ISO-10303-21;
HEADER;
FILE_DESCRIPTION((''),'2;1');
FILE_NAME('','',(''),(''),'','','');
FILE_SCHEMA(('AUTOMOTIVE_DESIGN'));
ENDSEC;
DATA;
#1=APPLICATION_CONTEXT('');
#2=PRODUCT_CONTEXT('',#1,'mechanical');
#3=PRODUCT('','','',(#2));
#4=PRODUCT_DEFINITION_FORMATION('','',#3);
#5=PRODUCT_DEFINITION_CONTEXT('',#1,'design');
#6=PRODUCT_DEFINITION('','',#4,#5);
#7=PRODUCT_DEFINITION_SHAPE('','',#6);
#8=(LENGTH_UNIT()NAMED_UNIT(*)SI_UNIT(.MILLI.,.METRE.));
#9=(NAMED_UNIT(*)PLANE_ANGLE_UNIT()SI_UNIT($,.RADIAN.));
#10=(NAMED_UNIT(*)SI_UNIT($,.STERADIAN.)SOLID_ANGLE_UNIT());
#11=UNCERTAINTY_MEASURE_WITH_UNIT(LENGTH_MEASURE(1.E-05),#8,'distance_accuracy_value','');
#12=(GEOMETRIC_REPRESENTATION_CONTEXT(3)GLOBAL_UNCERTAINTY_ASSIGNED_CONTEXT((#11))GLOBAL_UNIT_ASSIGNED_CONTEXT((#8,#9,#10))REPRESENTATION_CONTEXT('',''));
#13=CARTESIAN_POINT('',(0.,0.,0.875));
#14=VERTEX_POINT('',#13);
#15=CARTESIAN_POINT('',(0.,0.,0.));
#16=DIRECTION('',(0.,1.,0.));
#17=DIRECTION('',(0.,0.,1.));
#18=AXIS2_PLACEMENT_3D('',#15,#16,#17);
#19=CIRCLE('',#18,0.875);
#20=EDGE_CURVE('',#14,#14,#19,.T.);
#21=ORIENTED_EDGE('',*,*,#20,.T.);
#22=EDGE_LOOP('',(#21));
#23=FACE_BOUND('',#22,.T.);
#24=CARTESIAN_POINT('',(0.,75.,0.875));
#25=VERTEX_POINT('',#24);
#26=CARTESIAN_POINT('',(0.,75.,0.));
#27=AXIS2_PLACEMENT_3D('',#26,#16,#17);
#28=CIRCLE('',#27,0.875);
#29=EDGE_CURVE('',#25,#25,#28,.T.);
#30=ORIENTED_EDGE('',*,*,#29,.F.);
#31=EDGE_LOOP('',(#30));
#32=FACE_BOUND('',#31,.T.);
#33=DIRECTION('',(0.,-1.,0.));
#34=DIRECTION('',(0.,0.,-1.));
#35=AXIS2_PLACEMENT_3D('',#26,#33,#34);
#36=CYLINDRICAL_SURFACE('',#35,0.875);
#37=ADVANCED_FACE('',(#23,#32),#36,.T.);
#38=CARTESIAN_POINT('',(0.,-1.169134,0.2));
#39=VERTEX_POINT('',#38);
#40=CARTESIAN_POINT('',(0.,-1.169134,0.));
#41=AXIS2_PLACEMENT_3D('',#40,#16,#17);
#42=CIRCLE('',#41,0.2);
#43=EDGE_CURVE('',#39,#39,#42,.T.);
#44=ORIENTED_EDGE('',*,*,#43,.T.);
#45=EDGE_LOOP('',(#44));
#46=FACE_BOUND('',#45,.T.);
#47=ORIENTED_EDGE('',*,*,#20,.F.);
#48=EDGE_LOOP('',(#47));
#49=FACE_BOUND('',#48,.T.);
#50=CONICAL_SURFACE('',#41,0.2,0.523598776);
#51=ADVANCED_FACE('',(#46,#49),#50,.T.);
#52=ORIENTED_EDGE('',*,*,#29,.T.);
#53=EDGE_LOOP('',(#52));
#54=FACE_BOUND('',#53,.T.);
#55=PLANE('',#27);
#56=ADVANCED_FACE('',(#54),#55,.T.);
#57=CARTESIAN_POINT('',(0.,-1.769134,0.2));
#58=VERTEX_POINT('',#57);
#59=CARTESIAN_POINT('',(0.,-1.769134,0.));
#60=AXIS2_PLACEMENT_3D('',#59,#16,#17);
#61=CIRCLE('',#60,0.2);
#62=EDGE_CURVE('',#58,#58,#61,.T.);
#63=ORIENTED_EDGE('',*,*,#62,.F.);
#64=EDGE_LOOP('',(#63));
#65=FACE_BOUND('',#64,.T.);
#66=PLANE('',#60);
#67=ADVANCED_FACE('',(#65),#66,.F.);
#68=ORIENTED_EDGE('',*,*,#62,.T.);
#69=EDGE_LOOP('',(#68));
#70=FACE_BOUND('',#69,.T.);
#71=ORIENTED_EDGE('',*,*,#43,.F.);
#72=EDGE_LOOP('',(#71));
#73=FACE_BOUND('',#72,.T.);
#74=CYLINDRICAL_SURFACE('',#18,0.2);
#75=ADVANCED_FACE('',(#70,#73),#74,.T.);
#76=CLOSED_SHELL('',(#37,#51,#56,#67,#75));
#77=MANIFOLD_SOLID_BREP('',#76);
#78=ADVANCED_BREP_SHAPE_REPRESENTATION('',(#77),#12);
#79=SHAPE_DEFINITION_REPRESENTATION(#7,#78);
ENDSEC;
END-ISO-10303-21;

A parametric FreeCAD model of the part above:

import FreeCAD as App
import Part
import Sketcher
Q = App.Units.Quantity

doc = App.newDocument("Part")
body = doc.addObject("PartDesign::Body", "Body")

# Sketch on XZ plane
sketch1 = body.newObject("Sketcher::SketchObject", "Sketch")
sketch1.AttachmentSupport = (doc.getObject("XZ_Plane"), [""])
sketch1.MapMode = "FlatFace"
sketch1.addGeometry(Part.Circle(App.Vector(0, 0, 0), App.Vector(0, 0, 1), 0.9), False)
sketch1.addConstraint([
    Sketcher.Constraint("Coincident", 0, 3, -1, 1),
    Sketcher.Constraint("Diameter", 0, 1.75),
])
pad1 = body.newObject("PartDesign::Pad", "Pad")
pad1.Profile = sketch1
pad1.Length = 75
pad1.Reversed = True

# Sketch on YZ plane
sketch2 = body.newObject("Sketcher::SketchObject", "Sketch001")
sketch2.AttachmentSupport = (doc.getObject("YZ_Plane"), [""])
sketch2.MapMode = "FlatFace"
sketch2.addGeometry([
    Part.LineSegment(App.Vector(0, 0, 0), App.Vector(-1.77, 0, 0)),  # 0
    Part.LineSegment(App.Vector(-1.77, 0, 0), App.Vector(-1.77, -0.2, 0)),  # 1
    Part.LineSegment(App.Vector(-1.77, -0.2, 0), App.Vector(-1.17, -0.2, 0)),  # 2
    Part.LineSegment(App.Vector(-1.17, -0.2, 0), App.Vector(0, -0.88, 0)),  # 3
    Part.LineSegment(App.Vector(0, -0.88, 0), App.Vector(0, 0, 0)),  # 4
], False)
sketch2.addConstraint([
    Sketcher.Constraint("Coincident", 0, 2, 1, 1),
    Sketcher.Constraint("Coincident", 1, 2, 2, 1),
    Sketcher.Constraint("Coincident", 2, 2, 3, 1),
    Sketcher.Constraint("Coincident", 3, 2, 4, 1),
    Sketcher.Constraint("Coincident", 4, 2, 0, 1),
    Sketcher.Constraint("Horizontal", 0),
    Sketcher.Constraint("Vertical", 1),
    Sketcher.Constraint("Horizontal", 2),
    Sketcher.Constraint("Vertical", 4),
    Sketcher.Constraint("Coincident", 4, 2, -1, 1),
    Sketcher.Constraint("Angle", 3, Q("-30 deg")),
    Sketcher.Constraint("DistanceX", 2, 1, 2, 2, 0.6),
    Sketcher.Constraint("DistanceY", 1, 2, 1, 1, 0.2),
    Sketcher.Constraint("Distance", 3, 1.35),
])
revolution = body.newObject("PartDesign::Revolution", "Revolution")
revolution.Profile = sketch2
revolution.ReferenceAxis = (sketch2, ["H_Axis"])
revolution.Angle = 360

doc.recompute()
